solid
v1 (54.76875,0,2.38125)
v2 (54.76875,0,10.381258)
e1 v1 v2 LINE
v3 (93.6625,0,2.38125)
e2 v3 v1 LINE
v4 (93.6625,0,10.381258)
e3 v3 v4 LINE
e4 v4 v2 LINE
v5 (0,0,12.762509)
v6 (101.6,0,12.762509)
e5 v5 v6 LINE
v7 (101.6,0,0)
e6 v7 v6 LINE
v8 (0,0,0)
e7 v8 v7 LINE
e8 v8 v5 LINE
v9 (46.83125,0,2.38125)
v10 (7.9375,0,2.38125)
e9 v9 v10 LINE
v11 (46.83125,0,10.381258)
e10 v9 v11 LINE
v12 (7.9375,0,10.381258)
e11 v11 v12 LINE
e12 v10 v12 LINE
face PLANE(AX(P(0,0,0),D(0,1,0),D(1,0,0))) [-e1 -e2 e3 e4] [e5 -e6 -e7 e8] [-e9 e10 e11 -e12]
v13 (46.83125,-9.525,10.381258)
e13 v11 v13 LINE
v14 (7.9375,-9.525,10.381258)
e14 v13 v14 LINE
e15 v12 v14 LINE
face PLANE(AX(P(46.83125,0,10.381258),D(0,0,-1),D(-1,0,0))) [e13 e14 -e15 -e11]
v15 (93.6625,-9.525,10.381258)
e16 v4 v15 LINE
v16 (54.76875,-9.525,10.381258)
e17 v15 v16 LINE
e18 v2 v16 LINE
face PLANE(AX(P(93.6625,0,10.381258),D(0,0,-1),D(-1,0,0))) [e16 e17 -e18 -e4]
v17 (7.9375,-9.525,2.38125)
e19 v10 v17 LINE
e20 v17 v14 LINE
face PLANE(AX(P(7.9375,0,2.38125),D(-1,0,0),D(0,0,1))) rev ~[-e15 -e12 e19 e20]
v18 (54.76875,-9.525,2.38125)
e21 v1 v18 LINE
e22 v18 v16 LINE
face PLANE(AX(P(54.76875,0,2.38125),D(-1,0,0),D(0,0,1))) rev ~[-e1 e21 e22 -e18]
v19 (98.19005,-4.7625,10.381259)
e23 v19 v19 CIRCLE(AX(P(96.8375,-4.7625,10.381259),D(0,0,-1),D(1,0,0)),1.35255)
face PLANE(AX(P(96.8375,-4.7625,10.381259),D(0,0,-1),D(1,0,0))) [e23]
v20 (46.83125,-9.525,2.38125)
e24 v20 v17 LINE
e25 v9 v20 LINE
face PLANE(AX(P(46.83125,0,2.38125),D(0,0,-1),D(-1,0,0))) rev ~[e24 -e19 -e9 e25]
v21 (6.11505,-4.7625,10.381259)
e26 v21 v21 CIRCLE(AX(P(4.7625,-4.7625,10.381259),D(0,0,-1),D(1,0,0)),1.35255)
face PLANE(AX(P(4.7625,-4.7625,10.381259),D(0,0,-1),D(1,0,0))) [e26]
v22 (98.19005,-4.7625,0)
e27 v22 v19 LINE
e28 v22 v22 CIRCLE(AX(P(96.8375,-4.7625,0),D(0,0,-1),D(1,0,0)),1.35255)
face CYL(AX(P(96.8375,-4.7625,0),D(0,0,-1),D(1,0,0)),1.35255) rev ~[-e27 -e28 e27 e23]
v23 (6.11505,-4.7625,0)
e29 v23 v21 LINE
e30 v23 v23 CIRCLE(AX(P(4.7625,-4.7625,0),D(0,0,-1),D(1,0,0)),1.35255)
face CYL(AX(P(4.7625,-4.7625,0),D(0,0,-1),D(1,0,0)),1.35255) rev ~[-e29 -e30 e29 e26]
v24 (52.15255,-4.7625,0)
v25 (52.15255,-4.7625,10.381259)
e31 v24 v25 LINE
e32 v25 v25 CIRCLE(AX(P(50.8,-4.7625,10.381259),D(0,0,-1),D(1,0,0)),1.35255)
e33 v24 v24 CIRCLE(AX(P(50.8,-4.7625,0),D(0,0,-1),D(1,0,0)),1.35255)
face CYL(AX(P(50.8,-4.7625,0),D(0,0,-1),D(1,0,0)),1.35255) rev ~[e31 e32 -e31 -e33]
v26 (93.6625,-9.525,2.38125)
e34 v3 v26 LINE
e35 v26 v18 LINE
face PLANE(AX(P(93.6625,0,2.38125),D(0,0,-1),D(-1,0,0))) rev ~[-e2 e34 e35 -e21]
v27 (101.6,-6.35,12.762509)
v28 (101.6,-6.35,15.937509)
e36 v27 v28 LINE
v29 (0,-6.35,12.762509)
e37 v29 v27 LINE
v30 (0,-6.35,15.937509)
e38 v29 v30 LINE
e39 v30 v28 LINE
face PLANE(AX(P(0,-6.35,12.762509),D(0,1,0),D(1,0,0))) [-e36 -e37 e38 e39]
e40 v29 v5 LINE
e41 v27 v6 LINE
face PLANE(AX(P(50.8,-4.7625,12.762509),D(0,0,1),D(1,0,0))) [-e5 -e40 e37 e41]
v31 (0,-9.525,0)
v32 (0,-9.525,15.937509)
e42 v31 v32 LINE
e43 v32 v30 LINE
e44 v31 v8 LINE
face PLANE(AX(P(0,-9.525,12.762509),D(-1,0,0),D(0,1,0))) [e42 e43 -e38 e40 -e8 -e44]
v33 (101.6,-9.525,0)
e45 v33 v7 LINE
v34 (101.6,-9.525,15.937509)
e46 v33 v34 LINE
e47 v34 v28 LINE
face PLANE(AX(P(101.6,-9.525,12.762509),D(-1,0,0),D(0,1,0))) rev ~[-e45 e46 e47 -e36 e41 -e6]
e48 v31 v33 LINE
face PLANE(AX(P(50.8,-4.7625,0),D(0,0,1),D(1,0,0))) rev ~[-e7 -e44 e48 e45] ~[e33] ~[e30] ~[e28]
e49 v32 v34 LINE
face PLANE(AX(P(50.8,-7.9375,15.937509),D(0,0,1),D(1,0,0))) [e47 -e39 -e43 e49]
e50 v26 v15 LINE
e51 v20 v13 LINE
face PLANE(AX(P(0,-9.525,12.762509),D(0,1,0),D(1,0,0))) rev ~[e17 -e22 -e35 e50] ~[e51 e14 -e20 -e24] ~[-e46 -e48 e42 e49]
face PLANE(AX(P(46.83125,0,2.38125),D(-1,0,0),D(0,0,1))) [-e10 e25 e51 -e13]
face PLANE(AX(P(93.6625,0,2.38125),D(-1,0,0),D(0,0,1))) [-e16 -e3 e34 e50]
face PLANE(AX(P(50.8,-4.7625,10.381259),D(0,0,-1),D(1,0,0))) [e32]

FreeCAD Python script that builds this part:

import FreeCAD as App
import Part
import Sketcher

V = App.Vector
Q = App.Units.Quantity


def add_polygon(sketch, points):
    """Adds a closed chain of lines whose ends are joined by coincident constraints."""
    first, n = sketch.GeometryCount, len(points)
    for a, b in zip(points, points[1:] + points[:1]):
        sketch.addGeometry(Part.LineSegment(App.Vector(*a, 0), App.Vector(*b, 0)), False)
    for i in range(n):
        sketch.addConstraint(Sketcher.Constraint("Coincident", first + i, 2, first + (i + 1) % n, 1))

doc = App.newDocument("Part")
params = doc.addObject("Spreadsheet::Sheet", "Params")
for row, (alias, value) in enumerate([
    ("sketch1_width", "4 in"),
    ("sketch1_height", "0.375 in"),
    ("pad1_length", "12.762509 mm"),
    ("sketch2_width", "4 in"),
    ("sketch2_height", "0.125 in"),
    ("pad2_length", "0.125 in"),
    ("sketch3_width", "1.53125 in"),
    ("pocket2_length", "10.381259 mm"),
], start=1):
    params.set(f"A{row}", alias)
    params.set(f"B{row}", "=" + value)
    params.setAlias(f"B{row}", alias)

body = doc.addObject("PartDesign::Body", "Body")

# Sketch on XY plane
sketch1 = body.newObject("Sketcher::SketchObject", "Sketch")
sketch1.AttachmentSupport = (doc.getObject("XY_Plane"), [""])
sketch1.MapMode = "FlatFace"
add_polygon(sketch1, [(0, 0), (0, -10), (102, -10), (102, 0)])  # lines 0-3
sketch1.addConstraint(Sketcher.Constraint("Vertical", 0))
sketch1.addConstraint(Sketcher.Constraint("Horizontal", 1))
sketch1.addConstraint(Sketcher.Constraint("Vertical", 2))
sketch1.addConstraint(Sketcher.Constraint("Horizontal", 3))
sketch1.addConstraint(Sketcher.Constraint("Coincident", 3, 2, -1, 1))
sketch1.addConstraint(Sketcher.Constraint("DistanceX", 1, 1, 1, 2, Q("4 in")))
sketch1.addConstraint(Sketcher.Constraint("DistanceY", 0, 2, 0, 1, Q("0.375 in")))
sketch1.setExpression("Constraints[9]", "Params.sketch1_width")
sketch1.setExpression("Constraints[10]", "Params.sketch1_height")
pad1 = body.newObject("PartDesign::Pad", "Pad")
pad1.Profile = sketch1
pad1.setExpression("Length", "Params.pad1_length")

# Sketch on XY plane
sketch2 = body.newObject("Sketcher::SketchObject", "Sketch001")
sketch2.AttachmentSupport = (doc.getObject("XY_Plane"), [""])
sketch2.MapMode = "FlatFace"
sketch2.AttachmentOffset = App.Placement(V(0, 0, 12.762509), App.Rotation())
add_polygon(sketch2, [(0, -6.3), (0, -9.5), (101.6, -9.5), (101.6, -6.3)])  # lines 0-3
sketch2.addConstraint(Sketcher.Constraint("Vertical", 0))
sketch2.addConstraint(Sketcher.Constraint("Horizontal", 1))
sketch2.addConstraint(Sketcher.Constraint("Vertical", 2))
sketch2.addConstraint(Sketcher.Constraint("Horizontal", 3))
sketch2.addConstraint(Sketcher.Constraint("PointOnObject", 0, 2, -2))
sketch2.addConstraint(Sketcher.Constraint("DistanceX", 1, 1, 1, 2, Q("4 in")))
sketch2.addConstraint(Sketcher.Constraint("DistanceY", 0, 2, 0, 1, Q("0.125 in")))
sketch2.addConstraint(Sketcher.Constraint("DistanceY", 2, 2, -1, 1, Q("0.25 in")))
sketch2.setExpression("Constraints[9]", "Params.sketch2_width")
sketch2.setExpression("Constraints[10]", "Params.sketch2_height")
pad2 = body.newObject("PartDesign::Pad", "Pad001")
pad2.Profile = sketch2
pad2.setExpression("Length", "Params.pad2_length")

# Sketch on XZ plane
sketch3 = body.newObject("Sketcher::SketchObject", "Sketch002")
sketch3.AttachmentSupport = (doc.getObject("XZ_Plane"), [""])
sketch3.MapMode = "FlatFace"
add_polygon(sketch3, [(94, 10), (94, 2), (55, 2), (55, 10)])  # lines 0-3
add_polygon(sketch3, [(47, 10), (47, 2), (8, 2), (8, 10)])  # lines 4-7
sketch3.addConstraint(Sketcher.Constraint("Vertical", 0))
sketch3.addConstraint(Sketcher.Constraint("Horizontal", 1))
sketch3.addConstraint(Sketcher.Constraint("Vertical", 2))
sketch3.addConstraint(Sketcher.Constraint("Horizontal", 3))
sketch3.addConstraint(Sketcher.Constraint("Vertical", 4))
sketch3.addConstraint(Sketcher.Constraint("Horizontal", 5))
sketch3.addConstraint(Sketcher.Constraint("Vertical", 6))
sketch3.addConstraint(Sketcher.Constraint("Horizontal", 7))
sketch3.addConstraint(Sketcher.Constraint("Horizontal", 1, 2, 4, 2))
sketch3.addConstraint(Sketcher.Constraint("Horizontal", 3, 2, 6, 2))
sketch3.addConstraint(Sketcher.Constraint("Equal", 3, 5))
sketch3.addConstraint(Sketcher.Constraint("DistanceX", 1, 2, 1, 1, Q("1.53125 in")))
sketch3.addConstraint(Sketcher.Constraint("DistanceX", -1, 1, 0, 2, Q("3.6875 in")))
sketch3.addConstraint(Sketcher.Constraint("DistanceY", -1, 1, 0, 2, Q("0.09375 in")))
sketch3.addConstraint(Sketcher.Constraint("DistanceX", -1, 1, 4, 2, Q("1.84375 in")))
sketch3.addConstraint(Sketcher.Constraint("DistanceY", 0, 2, 0, 1, Q("8.000009 mm")))
sketch3.setExpression("Constraints[19]", "Params.sketch3_width")
pocket1 = body.newObject("PartDesign::Pocket", "Pocket")
pocket1.Profile = sketch3
pocket1.Type = "ThroughAll"
pocket1.Reversed = True

# Sketch on XY plane
sketch4 = body.newObject("Sketcher::SketchObject", "Sketch003")
sketch4.AttachmentSupport = (doc.getObject("XY_Plane"), [""])
sketch4.MapMode = "FlatFace"
sketch4.addGeometry(Part.Circle(V(96.8, -4.8, 0), V(0, 0, 1), 1.4), False)
sketch4.addGeometry(Part.Circle(V(50.8, -4.8, 0), V(0, 0, 1), 1.4), False)
sketch4.addGeometry(Part.Circle(V(4.8, -4.8, 0), V(0, 0, 1), 1.4), False)
sketch4.addConstraint(Sketcher.Constraint("Equal", 0, 1))
sketch4.addConstraint(Sketcher.Constraint("Equal", 1, 2))
sketch4.addConstraint(Sketcher.Constraint("Horizontal", 0, 3, 1, 3))
sketch4.addConstraint(Sketcher.Constraint("Horizontal", 1, 3, 2, 3))
sketch4.addConstraint(Sketcher.Constraint("DistanceX", -1, 1, 1, 3, Q("2 in")))
sketch4.addConstraint(Sketcher.Constraint("Diameter", 0, Q("0.1065 in")))
sketch4.addConstraint(Sketcher.Constraint("DistanceX", -1, 1, 0, 3, Q("3.8125 in")))
sketch4.addConstraint(Sketcher.Constraint("DistanceY", 0, 3, -1, 1, Q("0.1875 in")))
sketch4.addConstraint(Sketcher.Constraint("DistanceX", -1, 1, 2, 3, Q("0.1875 in")))
pocket2 = body.newObject("PartDesign::Pocket", "Pocket001")
pocket2.Profile = sketch4
pocket2.setExpression("Length", "Params.pocket2_length")
pocket2.Reversed = True

doc.recompute()
